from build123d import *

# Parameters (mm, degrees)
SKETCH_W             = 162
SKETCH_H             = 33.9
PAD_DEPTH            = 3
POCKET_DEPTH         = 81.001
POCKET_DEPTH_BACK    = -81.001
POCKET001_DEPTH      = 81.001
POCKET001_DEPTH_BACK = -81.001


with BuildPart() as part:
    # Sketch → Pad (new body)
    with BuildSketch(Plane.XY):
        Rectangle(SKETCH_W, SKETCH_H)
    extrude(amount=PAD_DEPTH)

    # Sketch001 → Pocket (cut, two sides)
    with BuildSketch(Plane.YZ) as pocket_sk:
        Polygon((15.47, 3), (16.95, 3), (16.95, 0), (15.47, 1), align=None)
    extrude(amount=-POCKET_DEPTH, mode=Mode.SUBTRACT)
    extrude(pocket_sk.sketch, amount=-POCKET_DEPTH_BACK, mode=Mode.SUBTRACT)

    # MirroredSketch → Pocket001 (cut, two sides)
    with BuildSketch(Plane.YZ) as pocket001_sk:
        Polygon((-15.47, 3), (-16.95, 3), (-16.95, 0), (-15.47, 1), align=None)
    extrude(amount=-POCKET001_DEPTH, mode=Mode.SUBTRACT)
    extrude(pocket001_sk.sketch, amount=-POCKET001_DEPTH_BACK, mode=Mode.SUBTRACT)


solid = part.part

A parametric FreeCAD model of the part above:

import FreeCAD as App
import Part
import Sketcher
Q = App.Units.Quantity


def add_polygon(sketch, points):
    """Adds a closed chain of lines whose ends are joined by coincident constraints."""
    first, n = sketch.GeometryCount, len(points)
    for a, b in zip(points, points[1:] + points[:1]):
        sketch.addGeometry(Part.LineSegment(App.Vector(*a, 0), App.Vector(*b, 0)), False)
    for i in range(n):
        sketch.addConstraint(Sketcher.Constraint("Coincident", first + i, 2, first + (i + 1) % n, 1))

doc = App.newDocument("Part")
body = doc.addObject("PartDesign::Body", "Body")

# Sketch on XY plane
sketch1 = body.newObject("Sketcher::SketchObject", "Sketch")
sketch1.AttachmentSupport = (doc.getObject("XY_Plane"), [""])
sketch1.MapMode = "FlatFace"
add_polygon(sketch1, [(-81, 17), (-81, -17), (81, -17), (81, 17)])  # lines 0-3
sketch1.addConstraint([
    Sketcher.Constraint("Vertical", 0),
    Sketcher.Constraint("Horizontal", 1),
    Sketcher.Constraint("Vertical", 2),
    Sketcher.Constraint("Horizontal", 3),
    Sketcher.Constraint("Symmetric", 0, 2, 2, 2, -1, 1),
    Sketcher.Constraint("DistanceX", 1, 1, 1, 2, Q("162 mm")),
    Sketcher.Constraint("DistanceY", 0, 2, 0, 1, Q("33.9 mm")),
])
pad1 = body.newObject("PartDesign::Pad", "Pad")
pad1.Profile = sketch1
pad1.Length = 3

# Sketch on YZ plane
sketch2 = body.newObject("Sketcher::SketchObject", "Sketch001")
sketch2.AttachmentSupport = (doc.getObject("YZ_Plane"), [""])
sketch2.MapMode = "FlatFace"
add_polygon(sketch2, [(16.9, 3), (15.5, 3), (15.5, 1), (16.9, 0)])  # lines 0-3
sketch2.addConstraint([
    Sketcher.Constraint("Horizontal", 0),
    Sketcher.Constraint("Vertical", 1),
    Sketcher.Constraint("Vertical", 3),
    Sketcher.Constraint("PointOnObject", 2, 2, -1),
    Sketcher.Constraint("DistanceY", 1, 2, 1, 1, Q("2 mm")),
    Sketcher.Constraint("DistanceY", 3, 1, 3, 2, Q("3 mm")),
    Sketcher.Constraint("DistanceX", 0, 2, 0, 1, Q("1.48 mm")),
    Sketcher.Constraint("DistanceX", -1, 1, 0, 2, Q("15.47 mm")),
])
pocket1 = body.newObject("PartDesign::Pocket", "Pocket")
pocket1.Profile = sketch2
pocket1.Type = "ThroughAll"
pocket1.Midplane = True

# Sketch on YZ plane
sketch3 = body.newObject("Sketcher::SketchObject", "Sketch002")
sketch3.AttachmentSupport = (doc.getObject("YZ_Plane"), [""])
sketch3.MapMode = "FlatFace"
add_polygon(sketch3, [(-15.5, 3), (-16.9, 3), (-16.9, 0), (-15.5, 1)])  # lines 0-3
sketch3.addConstraint([
    Sketcher.Constraint("Horizontal", 0),
    Sketcher.Constraint("Vertical", 1),
    Sketcher.Constraint("Vertical", 3),
    Sketcher.Constraint("PointOnObject", 1, 2, -1),
    Sketcher.Constraint("DistanceY", 1, 2, 1, 1, Q("3 mm")),
    Sketcher.Constraint("DistanceY", 3, 1, 3, 2, Q("2 mm")),
    Sketcher.Constraint("DistanceX", 0, 2, 0, 1, Q("1.48 mm")),
    Sketcher.Constraint("DistanceX", 0, 2, -1, 1, Q("16.95 mm")),
])
pocket2 = body.newObject("PartDesign::Pocket", "Pocket001")
pocket2.Profile = sketch3
pocket2.Type = "ThroughAll"
pocket2.Midplane = True

doc.recompute()
